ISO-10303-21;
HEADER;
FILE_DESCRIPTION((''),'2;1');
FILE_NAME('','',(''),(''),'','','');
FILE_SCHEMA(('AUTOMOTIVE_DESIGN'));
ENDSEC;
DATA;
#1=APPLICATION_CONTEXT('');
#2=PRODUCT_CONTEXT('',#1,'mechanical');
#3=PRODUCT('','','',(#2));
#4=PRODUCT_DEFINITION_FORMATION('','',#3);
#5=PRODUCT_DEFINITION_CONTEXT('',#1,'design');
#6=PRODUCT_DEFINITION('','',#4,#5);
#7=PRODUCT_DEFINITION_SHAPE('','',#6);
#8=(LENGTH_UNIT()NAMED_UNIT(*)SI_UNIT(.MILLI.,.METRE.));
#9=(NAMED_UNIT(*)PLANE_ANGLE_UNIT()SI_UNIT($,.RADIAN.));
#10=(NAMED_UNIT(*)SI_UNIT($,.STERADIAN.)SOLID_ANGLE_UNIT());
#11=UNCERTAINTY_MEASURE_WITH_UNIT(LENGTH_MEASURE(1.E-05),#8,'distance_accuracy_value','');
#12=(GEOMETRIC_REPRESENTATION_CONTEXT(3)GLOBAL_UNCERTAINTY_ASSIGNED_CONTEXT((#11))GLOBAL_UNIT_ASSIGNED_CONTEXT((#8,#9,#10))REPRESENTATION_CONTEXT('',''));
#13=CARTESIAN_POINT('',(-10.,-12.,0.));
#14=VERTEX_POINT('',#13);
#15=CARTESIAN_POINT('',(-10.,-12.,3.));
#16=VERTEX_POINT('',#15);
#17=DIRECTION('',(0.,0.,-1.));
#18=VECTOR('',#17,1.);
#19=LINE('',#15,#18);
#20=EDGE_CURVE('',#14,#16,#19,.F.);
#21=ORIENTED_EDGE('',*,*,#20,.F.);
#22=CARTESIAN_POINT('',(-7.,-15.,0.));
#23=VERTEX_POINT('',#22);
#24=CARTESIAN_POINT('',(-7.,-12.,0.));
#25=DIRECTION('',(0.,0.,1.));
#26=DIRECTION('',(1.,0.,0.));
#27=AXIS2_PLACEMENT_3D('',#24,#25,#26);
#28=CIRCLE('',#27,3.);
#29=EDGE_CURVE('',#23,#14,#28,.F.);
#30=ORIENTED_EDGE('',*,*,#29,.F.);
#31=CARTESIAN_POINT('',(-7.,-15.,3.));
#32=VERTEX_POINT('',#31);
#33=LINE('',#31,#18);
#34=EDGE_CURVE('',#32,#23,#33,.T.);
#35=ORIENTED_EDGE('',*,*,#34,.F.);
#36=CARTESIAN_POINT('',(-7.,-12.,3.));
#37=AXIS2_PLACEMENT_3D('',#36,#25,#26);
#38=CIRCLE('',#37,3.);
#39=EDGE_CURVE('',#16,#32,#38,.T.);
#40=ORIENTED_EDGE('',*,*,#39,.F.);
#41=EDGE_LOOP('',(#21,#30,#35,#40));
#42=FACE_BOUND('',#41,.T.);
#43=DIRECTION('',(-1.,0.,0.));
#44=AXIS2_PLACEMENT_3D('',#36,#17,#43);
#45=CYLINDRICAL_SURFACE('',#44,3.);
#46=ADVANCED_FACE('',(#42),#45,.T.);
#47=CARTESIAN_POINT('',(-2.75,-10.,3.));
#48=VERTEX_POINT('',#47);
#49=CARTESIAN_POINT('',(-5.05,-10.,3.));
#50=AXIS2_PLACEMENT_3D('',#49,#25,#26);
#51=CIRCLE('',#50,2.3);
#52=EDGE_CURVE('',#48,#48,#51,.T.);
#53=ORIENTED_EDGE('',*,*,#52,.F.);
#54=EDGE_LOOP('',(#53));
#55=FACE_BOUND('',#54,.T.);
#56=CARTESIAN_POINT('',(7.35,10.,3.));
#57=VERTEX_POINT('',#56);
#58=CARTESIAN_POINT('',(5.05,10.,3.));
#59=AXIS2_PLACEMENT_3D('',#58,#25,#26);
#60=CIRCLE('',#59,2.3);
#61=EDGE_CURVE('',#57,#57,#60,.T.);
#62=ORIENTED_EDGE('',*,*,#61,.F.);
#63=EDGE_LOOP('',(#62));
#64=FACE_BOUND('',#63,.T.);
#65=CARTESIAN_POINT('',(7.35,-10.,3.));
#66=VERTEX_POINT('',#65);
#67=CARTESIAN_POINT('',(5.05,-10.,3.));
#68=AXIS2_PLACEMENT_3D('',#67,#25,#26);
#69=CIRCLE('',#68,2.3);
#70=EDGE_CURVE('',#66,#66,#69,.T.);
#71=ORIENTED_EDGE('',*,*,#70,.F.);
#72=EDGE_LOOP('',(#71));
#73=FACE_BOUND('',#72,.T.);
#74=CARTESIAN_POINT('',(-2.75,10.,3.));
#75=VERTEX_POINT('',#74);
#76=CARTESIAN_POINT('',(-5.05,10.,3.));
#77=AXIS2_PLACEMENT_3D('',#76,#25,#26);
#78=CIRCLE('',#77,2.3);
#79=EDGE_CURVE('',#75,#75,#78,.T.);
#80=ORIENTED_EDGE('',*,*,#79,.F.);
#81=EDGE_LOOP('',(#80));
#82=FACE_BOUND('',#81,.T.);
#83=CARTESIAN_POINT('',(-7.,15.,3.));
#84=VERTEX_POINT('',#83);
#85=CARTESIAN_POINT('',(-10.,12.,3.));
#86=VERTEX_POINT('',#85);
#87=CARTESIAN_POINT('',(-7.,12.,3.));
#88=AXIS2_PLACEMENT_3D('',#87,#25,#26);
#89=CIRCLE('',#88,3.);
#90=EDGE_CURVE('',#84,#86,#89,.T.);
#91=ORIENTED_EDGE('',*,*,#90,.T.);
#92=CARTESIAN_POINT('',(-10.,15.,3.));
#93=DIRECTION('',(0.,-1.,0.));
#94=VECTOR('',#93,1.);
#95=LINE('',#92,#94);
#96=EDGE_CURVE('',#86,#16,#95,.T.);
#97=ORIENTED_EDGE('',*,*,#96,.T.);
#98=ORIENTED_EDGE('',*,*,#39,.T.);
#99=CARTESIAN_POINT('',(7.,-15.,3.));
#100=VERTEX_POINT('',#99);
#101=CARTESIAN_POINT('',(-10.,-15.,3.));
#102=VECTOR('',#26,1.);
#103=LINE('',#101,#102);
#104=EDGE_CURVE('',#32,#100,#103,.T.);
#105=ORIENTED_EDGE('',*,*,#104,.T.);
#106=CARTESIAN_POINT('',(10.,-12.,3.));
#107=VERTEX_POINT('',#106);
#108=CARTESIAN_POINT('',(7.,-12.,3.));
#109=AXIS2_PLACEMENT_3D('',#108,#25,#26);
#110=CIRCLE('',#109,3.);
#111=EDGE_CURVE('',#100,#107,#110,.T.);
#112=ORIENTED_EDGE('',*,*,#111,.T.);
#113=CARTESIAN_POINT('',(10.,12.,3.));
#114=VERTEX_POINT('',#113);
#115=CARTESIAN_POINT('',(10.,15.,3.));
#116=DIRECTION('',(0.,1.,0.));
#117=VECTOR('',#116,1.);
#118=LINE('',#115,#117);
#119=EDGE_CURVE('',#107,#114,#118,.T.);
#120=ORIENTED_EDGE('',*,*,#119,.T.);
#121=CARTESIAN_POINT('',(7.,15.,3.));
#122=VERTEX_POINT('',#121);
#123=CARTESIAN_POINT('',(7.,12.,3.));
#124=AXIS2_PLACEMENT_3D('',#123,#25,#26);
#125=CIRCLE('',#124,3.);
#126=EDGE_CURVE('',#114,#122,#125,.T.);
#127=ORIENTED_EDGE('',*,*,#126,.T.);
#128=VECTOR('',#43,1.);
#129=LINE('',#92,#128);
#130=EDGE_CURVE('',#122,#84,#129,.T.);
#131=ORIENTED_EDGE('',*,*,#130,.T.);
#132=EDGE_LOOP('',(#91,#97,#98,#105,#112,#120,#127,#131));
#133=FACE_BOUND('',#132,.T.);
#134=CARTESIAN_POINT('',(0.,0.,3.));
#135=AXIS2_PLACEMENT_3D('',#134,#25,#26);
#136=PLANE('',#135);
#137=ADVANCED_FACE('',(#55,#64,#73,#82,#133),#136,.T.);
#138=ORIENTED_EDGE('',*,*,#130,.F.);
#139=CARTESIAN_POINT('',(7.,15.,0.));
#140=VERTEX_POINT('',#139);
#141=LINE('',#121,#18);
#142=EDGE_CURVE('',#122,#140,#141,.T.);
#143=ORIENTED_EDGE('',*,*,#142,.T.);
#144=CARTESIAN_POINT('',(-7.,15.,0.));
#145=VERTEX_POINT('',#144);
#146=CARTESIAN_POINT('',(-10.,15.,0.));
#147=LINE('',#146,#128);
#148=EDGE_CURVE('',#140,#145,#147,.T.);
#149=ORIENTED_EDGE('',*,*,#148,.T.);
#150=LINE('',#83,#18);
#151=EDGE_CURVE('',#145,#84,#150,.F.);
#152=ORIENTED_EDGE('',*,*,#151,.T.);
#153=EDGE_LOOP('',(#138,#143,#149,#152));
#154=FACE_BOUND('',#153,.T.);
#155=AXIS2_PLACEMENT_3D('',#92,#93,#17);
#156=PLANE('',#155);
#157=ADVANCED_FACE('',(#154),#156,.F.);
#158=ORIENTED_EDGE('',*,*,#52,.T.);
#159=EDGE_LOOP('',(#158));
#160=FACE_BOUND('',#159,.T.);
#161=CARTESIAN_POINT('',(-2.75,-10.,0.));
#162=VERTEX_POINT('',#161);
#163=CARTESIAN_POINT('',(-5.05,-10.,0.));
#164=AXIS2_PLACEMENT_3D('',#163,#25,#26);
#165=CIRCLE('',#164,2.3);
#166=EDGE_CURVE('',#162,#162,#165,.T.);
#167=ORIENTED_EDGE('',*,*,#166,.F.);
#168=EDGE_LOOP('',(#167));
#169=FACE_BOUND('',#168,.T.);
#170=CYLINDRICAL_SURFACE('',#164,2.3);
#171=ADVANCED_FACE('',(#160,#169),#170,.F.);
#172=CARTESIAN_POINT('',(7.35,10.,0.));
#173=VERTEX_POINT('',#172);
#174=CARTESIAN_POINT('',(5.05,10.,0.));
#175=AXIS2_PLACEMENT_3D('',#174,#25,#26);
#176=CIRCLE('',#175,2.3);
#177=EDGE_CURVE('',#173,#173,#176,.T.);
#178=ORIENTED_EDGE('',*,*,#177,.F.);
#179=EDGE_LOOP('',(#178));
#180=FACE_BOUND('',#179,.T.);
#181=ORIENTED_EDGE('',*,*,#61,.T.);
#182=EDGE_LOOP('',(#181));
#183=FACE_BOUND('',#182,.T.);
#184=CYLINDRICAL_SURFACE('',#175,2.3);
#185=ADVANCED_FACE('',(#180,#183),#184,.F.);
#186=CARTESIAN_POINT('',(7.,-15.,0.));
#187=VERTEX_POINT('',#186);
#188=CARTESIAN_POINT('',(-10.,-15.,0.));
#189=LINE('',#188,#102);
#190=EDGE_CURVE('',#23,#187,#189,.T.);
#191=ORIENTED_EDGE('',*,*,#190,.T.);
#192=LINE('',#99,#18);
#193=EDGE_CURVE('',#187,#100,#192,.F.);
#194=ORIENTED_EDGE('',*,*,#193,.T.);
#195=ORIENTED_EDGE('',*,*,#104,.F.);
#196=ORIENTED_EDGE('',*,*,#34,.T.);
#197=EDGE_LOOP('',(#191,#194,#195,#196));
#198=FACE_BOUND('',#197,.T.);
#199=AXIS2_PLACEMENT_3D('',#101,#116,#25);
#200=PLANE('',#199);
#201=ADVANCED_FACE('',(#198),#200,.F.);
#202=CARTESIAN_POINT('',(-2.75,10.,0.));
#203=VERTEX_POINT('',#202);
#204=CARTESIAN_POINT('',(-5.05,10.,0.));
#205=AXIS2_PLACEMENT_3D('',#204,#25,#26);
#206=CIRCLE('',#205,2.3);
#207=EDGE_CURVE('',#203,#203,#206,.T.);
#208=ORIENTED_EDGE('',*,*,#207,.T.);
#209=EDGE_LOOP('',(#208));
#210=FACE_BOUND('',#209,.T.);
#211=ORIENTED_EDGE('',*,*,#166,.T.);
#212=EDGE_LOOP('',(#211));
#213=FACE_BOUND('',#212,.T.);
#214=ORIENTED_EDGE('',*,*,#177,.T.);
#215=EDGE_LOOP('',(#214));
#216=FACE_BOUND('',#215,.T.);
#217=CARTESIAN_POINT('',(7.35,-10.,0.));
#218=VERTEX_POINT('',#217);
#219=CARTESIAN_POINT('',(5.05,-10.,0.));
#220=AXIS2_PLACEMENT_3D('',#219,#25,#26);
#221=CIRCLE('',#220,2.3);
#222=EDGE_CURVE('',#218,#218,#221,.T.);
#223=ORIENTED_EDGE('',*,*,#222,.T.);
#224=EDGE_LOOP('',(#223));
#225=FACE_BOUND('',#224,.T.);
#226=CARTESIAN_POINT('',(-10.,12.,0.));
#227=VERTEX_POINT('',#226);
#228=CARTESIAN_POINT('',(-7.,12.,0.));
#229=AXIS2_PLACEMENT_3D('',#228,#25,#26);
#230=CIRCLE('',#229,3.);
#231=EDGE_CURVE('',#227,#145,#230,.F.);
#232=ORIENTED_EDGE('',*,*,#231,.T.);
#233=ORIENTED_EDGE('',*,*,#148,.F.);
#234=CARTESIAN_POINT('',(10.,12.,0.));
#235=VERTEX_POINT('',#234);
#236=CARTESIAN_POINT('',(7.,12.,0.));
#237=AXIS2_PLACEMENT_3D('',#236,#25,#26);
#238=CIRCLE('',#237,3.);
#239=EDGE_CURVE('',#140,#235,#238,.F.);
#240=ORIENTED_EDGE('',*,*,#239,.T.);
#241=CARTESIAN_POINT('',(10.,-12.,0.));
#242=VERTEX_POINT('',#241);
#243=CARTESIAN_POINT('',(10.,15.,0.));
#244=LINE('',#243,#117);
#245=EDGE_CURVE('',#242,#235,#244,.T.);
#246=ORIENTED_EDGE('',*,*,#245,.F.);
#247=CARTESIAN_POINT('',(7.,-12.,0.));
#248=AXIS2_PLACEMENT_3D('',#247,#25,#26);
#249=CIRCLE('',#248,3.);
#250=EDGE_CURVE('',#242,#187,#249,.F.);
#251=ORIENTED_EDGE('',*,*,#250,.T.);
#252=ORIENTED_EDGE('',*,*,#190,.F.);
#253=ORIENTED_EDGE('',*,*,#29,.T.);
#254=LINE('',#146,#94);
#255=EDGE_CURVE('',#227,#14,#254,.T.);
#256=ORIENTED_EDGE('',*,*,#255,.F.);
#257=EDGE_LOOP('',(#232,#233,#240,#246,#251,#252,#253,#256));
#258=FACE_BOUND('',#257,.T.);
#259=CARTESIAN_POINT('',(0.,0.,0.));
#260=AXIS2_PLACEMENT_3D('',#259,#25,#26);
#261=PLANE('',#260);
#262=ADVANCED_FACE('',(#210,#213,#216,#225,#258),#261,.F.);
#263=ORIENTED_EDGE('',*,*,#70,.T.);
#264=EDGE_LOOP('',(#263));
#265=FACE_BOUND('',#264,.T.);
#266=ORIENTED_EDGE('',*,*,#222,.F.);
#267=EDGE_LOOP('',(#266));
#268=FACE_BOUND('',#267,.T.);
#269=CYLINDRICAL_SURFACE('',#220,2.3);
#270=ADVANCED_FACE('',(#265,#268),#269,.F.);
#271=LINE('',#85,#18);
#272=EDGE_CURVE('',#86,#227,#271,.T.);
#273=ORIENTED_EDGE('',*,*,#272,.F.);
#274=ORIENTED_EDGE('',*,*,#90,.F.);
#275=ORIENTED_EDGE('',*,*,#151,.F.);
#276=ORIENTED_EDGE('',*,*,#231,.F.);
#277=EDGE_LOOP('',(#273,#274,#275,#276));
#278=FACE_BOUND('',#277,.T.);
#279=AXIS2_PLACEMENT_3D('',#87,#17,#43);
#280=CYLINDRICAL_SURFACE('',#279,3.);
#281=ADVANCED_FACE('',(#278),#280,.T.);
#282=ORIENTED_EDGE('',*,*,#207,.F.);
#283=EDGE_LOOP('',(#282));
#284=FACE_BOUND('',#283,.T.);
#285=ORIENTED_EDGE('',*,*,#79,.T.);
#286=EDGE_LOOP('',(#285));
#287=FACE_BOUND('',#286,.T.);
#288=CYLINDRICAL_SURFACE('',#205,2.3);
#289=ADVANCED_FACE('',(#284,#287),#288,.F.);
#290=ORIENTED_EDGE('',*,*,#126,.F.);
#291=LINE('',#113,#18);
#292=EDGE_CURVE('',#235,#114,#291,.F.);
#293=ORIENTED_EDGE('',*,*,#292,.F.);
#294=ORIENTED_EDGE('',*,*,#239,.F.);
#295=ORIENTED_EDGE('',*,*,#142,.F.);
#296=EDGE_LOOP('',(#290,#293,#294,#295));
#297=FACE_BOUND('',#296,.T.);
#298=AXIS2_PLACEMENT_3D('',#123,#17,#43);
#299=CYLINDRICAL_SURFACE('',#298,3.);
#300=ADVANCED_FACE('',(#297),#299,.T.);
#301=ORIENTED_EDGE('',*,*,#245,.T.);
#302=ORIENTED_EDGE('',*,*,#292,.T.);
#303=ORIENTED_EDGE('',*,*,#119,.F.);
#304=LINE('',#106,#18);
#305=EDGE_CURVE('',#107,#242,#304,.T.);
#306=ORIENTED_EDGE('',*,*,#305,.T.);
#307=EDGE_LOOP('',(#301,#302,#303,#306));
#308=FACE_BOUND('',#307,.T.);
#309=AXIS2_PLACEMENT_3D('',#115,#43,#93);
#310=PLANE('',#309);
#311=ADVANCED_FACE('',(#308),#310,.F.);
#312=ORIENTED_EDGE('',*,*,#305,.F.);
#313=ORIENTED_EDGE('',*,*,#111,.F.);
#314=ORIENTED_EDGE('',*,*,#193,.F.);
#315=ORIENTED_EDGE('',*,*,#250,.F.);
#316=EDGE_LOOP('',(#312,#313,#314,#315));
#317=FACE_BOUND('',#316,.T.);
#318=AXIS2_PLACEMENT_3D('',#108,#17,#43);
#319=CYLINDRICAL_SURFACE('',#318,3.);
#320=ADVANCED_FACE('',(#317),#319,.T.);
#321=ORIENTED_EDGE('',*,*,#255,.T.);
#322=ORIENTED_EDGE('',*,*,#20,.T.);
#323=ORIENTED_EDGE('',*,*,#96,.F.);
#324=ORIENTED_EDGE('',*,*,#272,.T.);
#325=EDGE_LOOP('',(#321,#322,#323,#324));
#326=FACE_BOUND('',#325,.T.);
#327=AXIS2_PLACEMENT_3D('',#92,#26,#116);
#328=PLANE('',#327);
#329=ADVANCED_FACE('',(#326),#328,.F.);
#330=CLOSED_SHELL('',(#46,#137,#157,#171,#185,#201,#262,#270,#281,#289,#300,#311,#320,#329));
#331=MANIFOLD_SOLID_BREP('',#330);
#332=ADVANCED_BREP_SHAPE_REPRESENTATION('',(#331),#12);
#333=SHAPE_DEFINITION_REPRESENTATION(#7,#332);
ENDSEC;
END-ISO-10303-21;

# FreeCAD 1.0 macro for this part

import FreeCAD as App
import Part
import Sketcher

V = App.Vector
Q = App.Units.Quantity


def edges_at(feature, points):
    """Names of the edges that pass closest to the given points."""
    edges = feature.Shape.Edges
    near = lambda p: min(range(len(edges)), key=lambda i: edges[i].distToShape(Part.Vertex(*p))[0])
    return sorted({f"Edge{near(p) + 1}" for p in points})

doc = App.newDocument("Part")
body = doc.addObject("PartDesign::Body", "Body")

# Sketch on XY plane
sketch1 = body.newObject("Sketcher::SketchObject", "Sketch")
sketch1.AttachmentSupport = (doc.getObject("XY_Plane"), [""])
sketch1.MapMode = "FlatFace"
sketch1.addGeometry(Part.LineSegment(V(-10, 15, 0), V(-10, -15, 0)), False)
sketch1.addGeometry(Part.LineSegment(V(-10, -15, 0), V(10, -15, 0)), False)
sketch1.addGeometry(Part.LineSegment(V(10, -15, 0), V(10, 15, 0)), False)
sketch1.addGeometry(Part.LineSegment(V(10, 15, 0), V(-10, 15, 0)), False)
sketch1.addConstraint(Sketcher.Constraint("Coincident", 0, 2, 1, 1))
sketch1.addConstraint(Sketcher.Constraint("Coincident", 1, 2, 2, 1))
sketch1.addConstraint(Sketcher.Constraint("Coincident", 2, 2, 3, 1))
sketch1.addConstraint(Sketcher.Constraint("Coincident", 3, 2, 0, 1))
sketch1.addConstraint(Sketcher.Constraint("Vertical", 0))
sketch1.addConstraint(Sketcher.Constraint("Horizontal", 1))
sketch1.addConstraint(Sketcher.Constraint("Vertical", 2))
sketch1.addConstraint(Sketcher.Constraint("Horizontal", 3))
sketch1.addConstraint(Sketcher.Constraint("Symmetric", 0, 2, 2, 2, -1, 1))
sketch1.addConstraint(Sketcher.Constraint("DistanceX", 1, 1, 1, 2, Q("20 mm")))
sketch1.addConstraint(Sketcher.Constraint("DistanceY", 0, 2, 0, 1, Q("30 mm")))
pad1 = body.newObject("PartDesign::Pad", "Pad")
pad1.Profile = sketch1
pad1.Length = 3

# Sketch on XY plane
sketch2 = body.newObject("Sketcher::SketchObject", "Sketch001")
sketch2.AttachmentSupport = (doc.getObject("XY_Plane"), [""])
sketch2.MapMode = "FlatFace"
sketch2.AttachmentOffset = App.Placement(V(0, 0, 3), App.Rotation())
sketch2.addGeometry(Part.Circle(V(-5, 10, 0), V(0, 0, 1), 2.3), False)
sketch2.addGeometry(Part.Circle(V(5, 10, 0), V(0, 0, 1), 2.3), False)
sketch2.addGeometry(Part.Circle(V(-5, -10, 0), V(0, 0, 1), 2.3), False)
sketch2.addGeometry(Part.Circle(V(5, -10, 0), V(0, 0, 1), 2.3), False)
sketch2.addConstraint(Sketcher.Constraint("Equal", 0, 1))
sketch2.addConstraint(Sketcher.Constraint("Equal", 1, 2))
sketch2.addConstraint(Sketcher.Constraint("Equal", 2, 3))
sketch2.addConstraint(Sketcher.Constraint("Symmetric", 1, 3, 2, 3, -1, 1))
sketch2.addConstraint(Sketcher.Constraint("Symmetric", 0, 3, 3, 3, -1, 1))
sketch2.addConstraint(Sketcher.Constraint("Symmetric", 0, 3, 1, 3, -2))
sketch2.addConstraint(Sketcher.Constraint("Diameter", 0, Q("4.6 mm")))
sketch2.addConstraint(Sketcher.Constraint("DistanceY", -1, 1, 0, 3, Q("10 mm")))
sketch2.addConstraint(Sketcher.Constraint("DistanceX", 0, 3, 1, 3, Q("10.1 mm")))
pocket1 = body.newObject("PartDesign::Pocket", "Pocket")
pocket1.Profile = sketch2
pocket1.Length = 3
doc.recompute()

fillet = body.newObject("PartDesign::Fillet", "Fillet")
fillet.Base = (pocket1, edges_at(pocket1, [
    (10, -15, 1.5),
    (-10, -15, 1.5),
    (-10, 15, 1.5),
    (10, 15, 1.5),
]))
fillet.Radius = 3

doc.recompute()
